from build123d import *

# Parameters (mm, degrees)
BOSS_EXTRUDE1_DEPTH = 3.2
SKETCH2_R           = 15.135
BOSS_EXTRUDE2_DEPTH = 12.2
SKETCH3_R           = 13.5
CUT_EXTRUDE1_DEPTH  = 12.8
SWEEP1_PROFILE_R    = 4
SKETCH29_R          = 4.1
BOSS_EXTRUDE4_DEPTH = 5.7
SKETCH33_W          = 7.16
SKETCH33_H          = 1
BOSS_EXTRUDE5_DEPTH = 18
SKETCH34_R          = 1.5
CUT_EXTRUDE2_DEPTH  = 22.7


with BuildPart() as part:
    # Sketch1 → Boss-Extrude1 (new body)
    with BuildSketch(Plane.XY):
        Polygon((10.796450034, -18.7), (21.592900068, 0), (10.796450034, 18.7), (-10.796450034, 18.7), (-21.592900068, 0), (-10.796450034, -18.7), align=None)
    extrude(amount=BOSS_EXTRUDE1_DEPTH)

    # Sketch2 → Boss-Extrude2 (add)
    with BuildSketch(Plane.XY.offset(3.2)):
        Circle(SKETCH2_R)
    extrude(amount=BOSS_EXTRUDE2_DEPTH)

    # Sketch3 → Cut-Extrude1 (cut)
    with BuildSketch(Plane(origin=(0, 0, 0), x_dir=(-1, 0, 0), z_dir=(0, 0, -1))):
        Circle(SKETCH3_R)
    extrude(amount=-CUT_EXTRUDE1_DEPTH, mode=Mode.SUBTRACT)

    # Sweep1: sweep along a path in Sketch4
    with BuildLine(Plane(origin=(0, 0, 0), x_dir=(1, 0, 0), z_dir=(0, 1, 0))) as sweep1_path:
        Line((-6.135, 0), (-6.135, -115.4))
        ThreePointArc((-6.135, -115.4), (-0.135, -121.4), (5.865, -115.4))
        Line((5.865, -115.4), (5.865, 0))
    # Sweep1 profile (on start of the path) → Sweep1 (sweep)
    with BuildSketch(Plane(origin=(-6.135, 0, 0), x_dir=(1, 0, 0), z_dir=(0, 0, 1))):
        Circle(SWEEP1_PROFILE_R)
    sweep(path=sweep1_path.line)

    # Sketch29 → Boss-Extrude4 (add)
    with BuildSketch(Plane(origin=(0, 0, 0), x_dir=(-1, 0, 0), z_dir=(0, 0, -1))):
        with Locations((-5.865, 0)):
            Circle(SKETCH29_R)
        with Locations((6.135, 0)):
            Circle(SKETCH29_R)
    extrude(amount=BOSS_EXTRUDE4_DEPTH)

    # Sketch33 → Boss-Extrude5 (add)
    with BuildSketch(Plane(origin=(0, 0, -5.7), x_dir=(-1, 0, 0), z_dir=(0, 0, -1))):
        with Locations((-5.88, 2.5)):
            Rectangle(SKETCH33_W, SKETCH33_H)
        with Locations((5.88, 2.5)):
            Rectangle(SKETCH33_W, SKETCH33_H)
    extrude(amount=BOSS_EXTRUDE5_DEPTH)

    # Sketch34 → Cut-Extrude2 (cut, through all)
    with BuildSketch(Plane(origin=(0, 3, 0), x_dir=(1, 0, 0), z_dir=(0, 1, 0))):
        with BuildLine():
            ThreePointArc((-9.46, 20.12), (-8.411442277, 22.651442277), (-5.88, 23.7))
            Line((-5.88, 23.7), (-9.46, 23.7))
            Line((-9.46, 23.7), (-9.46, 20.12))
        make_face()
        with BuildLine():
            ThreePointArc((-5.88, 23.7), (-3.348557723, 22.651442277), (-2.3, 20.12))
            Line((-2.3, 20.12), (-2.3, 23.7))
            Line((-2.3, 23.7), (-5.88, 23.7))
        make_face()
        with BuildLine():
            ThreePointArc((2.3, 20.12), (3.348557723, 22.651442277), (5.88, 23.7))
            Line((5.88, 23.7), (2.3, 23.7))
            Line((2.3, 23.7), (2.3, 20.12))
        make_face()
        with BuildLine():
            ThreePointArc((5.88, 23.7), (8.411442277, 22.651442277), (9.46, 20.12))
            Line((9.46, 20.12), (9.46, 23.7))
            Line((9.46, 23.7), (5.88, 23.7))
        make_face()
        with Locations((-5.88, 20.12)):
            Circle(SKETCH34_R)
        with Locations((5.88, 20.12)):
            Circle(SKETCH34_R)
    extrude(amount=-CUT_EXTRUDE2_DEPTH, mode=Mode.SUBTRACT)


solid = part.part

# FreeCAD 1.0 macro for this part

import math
import FreeCAD as App
import Part
import Sketcher
from FreeCAD import Vector
Q = App.Units.Quantity

doc = App.newDocument("Part")
body = doc.addObject("PartDesign::Body", "Body")

# Sketch on XY plane
sketch1 = doc.addObject("Sketcher::SketchObject", "Sketch")
body.addObject(sketch1)
sketch1.AttachmentSupport = (doc.XY_Plane, [""])
sketch1.MapMode = "FlatFace"
sketch1.addGeometry(Part.LineSegment(Vector(11, -19, 0), Vector(22, 0, 0)), False)
sketch1.addGeometry(Part.LineSegment(Vector(22, 0, 0), Vector(11, 19, 0)), False)
sketch1.addGeometry(Part.LineSegment(Vector(11, 19, 0), Vector(-11, 19, 0)), False)
sketch1.addGeometry(Part.LineSegment(Vector(-11, 19, 0), Vector(-22, 0, 0)), False)
sketch1.addGeometry(Part.LineSegment(Vector(-22, 0, 0), Vector(-11, -19, 0)), False)
sketch1.addGeometry(Part.LineSegment(Vector(-11, -19, 0), Vector(11, -19, 0)), False)
sketch1.addConstraint(Sketcher.Constraint("Coincident", 0, 2, 1, 1))
sketch1.addConstraint(Sketcher.Constraint("Coincident", 1, 2, 2, 1))
sketch1.addConstraint(Sketcher.Constraint("Coincident", 2, 2, 3, 1))
sketch1.addConstraint(Sketcher.Constraint("Coincident", 3, 2, 4, 1))
sketch1.addConstraint(Sketcher.Constraint("Coincident", 4, 2, 5, 1))
sketch1.addConstraint(Sketcher.Constraint("Coincident", 5, 2, 0, 1))
sketch1.addConstraint(Sketcher.Constraint("Horizontal", 2))
sketch1.addConstraint(Sketcher.Constraint("Horizontal", 5))
sketch1.addConstraint(Sketcher.Constraint("Symmetric", 0, 2, 3, 2, -1, 1))
sketch1.addConstraint(Sketcher.Constraint("Symmetric", 1, 2, 4, 2, -1, 1))
sketch1.addConstraint(Sketcher.Constraint("PointOnObject", 0, 2, -1))
sketch1.addConstraint(Sketcher.Constraint("Parallel", 0, 3))
sketch1.addConstraint(Sketcher.Constraint("Vertical", 2, 2, 4, 2))
sketch1.addConstraint(Sketcher.Constraint("Angle", 0, Q("60 deg")))
sketch1.addConstraint(Sketcher.Constraint("DistanceY", -1, 1, 1, 2, Q("18.7 mm")))
sketch1.addConstraint(Sketcher.Constraint("DistanceX", 2, 2, 2, 1, Q("21.5929 mm")))
pad1 = doc.addObject("PartDesign::Pad", "Pad")
body.addObject(pad1)
pad1.Profile = sketch1
pad1.Length = 3.2

# Sketch on XY plane
sketch2 = doc.addObject("Sketcher::SketchObject", "Sketch001")
body.addObject(sketch2)
sketch2.AttachmentSupport = (doc.XY_Plane, [""])
sketch2.MapMode = "FlatFace"
sketch2.AttachmentOffset = App.Placement(Vector(0, 0, 3.2), App.Rotation())
sketch2.addGeometry(Part.Circle(Vector(0, 0, 0), Vector(0, 0, 1), 15), False)
sketch2.addConstraint(Sketcher.Constraint("Coincident", 0, 3, -1, 1))
sketch2.addConstraint(Sketcher.Constraint("Diameter", 0, Q("30.27 mm")))
pad2 = doc.addObject("PartDesign::Pad", "Pad001")
body.addObject(pad2)
pad2.Profile = sketch2
pad2.Length = 12.2

# Sketch on XY plane
sketch3 = doc.addObject("Sketcher::SketchObject", "Sketch002")
body.addObject(sketch3)
sketch3.AttachmentSupport = (doc.XY_Plane, [""])
sketch3.MapMode = "FlatFace"
sketch3.addGeometry(Part.Circle(Vector(0, 0, 0), Vector(0, 0, 1), 14), False)
sketch3.addConstraint(Sketcher.Constraint("Coincident", 0, 3, -1, 1))
sketch3.addConstraint(Sketcher.Constraint("Diameter", 0, Q("27 mm")))
pocket1 = doc.addObject("PartDesign::Pocket", "Pocket")
body.addObject(pocket1)
pocket1.Profile = sketch3
pocket1.Length = 12.8
pocket1.Reversed = True

# Sketch on XY plane
sketch4 = doc.addObject("Sketcher::SketchObject", "Sketch003")
body.addObject(sketch4)
sketch4.AttachmentSupport = (doc.XY_Plane, [""])
sketch4.MapMode = "FlatFace"
sketch4.addGeometry(Part.Circle(Vector(-6.1, 0, 0), Vector(0, 0, 1), 4), False)
sketch4.addConstraint(Sketcher.Constraint("PointOnObject", 0, 3, -1))
sketch4.addConstraint(Sketcher.Constraint("Diameter", 0, Q("8 mm")))
sketch4.addConstraint(Sketcher.Constraint("DistanceX", 0, 3, -1, 1, Q("6.135 mm")))

# Sketch on XZ plane
sketch5 = doc.addObject("Sketcher::SketchObject", "Sketch004")
body.addObject(sketch5)
sketch5.AttachmentSupport = (doc.XZ_Plane, [""])
sketch5.MapMode = "FlatFace"
sketch5.addGeometry(Part.LineSegment(Vector(-6, 0, 0), Vector(-6, 115, 0)), False)
sketch5.addGeometry(Part.ArcOfCircle(Part.Circle(Vector(0, 115, 0), Vector(0, 0, 1), 6), math.radians(0), math.radians(180)), False)
sketch5.addGeometry(Part.LineSegment(Vector(6, 115, 0), Vector(6, 0, 0)), False)
sketch5.addConstraint(Sketcher.Constraint("Tangent", 0, 2, 1, 2))
sketch5.addConstraint(Sketcher.Constraint("Tangent", 1, 1, 2, 1))
sketch5.addConstraint(Sketcher.Constraint("Vertical", 0))
sketch5.addConstraint(Sketcher.Constraint("Vertical", 2))
sketch5.addConstraint(Sketcher.Constraint("PointOnObject", 0, 1, -1))
sketch5.addConstraint(Sketcher.Constraint("PointOnObject", 2, 2, -1))
sketch5.addConstraint(Sketcher.Constraint("Radius", 1, Q("6 mm")))
sketch5.addConstraint(Sketcher.Constraint("DistanceY", 0, 1, 0, 2, Q("115.4 mm")))
sketch5.addConstraint(Sketcher.Constraint("DistanceX", 1, 3, -1, 1, Q("0.135 mm")))
doc.recompute()

additivepipe = doc.addObject("PartDesign::AdditivePipe", "AdditivePipe")
body.addObject(additivepipe)
additivepipe.Profile = sketch4
additivepipe.Spine = (sketch5, ["Edge1", "Edge2", "Edge3"])

# Sketch on XY plane
sketch6 = doc.addObject("Sketcher::SketchObject", "Sketch005")
body.addObject(sketch6)
sketch6.AttachmentSupport = (doc.XY_Plane, [""])
sketch6.MapMode = "FlatFace"
sketch6.addGeometry(Part.Circle(Vector(5.9, 0, 0), Vector(0, 0, 1), 4.1), False)
sketch6.addGeometry(Part.Circle(Vector(-6.1, 0, 0), Vector(0, 0, 1), 4.1), False)
sketch6.addConstraint(Sketcher.Constraint("Equal", 0, 1))
sketch6.addConstraint(Sketcher.Constraint("PointOnObject", 0, 3, -1))
sketch6.addConstraint(Sketcher.Constraint("PointOnObject", 1, 3, -1))
sketch6.addConstraint(Sketcher.Constraint("Diameter", 0, Q("8.2 mm")))
sketch6.addConstraint(Sketcher.Constraint("DistanceX", 1, 3, 0, 3, Q("12 mm")))
sketch6.addConstraint(Sketcher.Constraint("DistanceX", -1, 1, 0, 3, Q("5.865 mm")))
pad3 = doc.addObject("PartDesign::Pad", "Pad002")
body.addObject(pad3)
pad3.Profile = sketch6
pad3.Length = 5.7
pad3.Reversed = True

# Sketch on XY plane
sketch7 = doc.addObject("Sketcher::SketchObject", "Sketch006")
body.addObject(sketch7)
sketch7.AttachmentSupport = (doc.XY_Plane, [""])
sketch7.MapMode = "FlatFace"
sketch7.AttachmentOffset = App.Placement(Vector(0, 0, -5.7), App.Rotation())
sketch7.addGeometry(Part.LineSegment(Vector(9.5, 3, 0), Vector(9.5, 2, 0)), False)
sketch7.addGeometry(Part.LineSegment(Vector(9.5, 2, 0), Vector(2.3, 2, 0)), False)
sketch7.addGeometry(Part.LineSegment(Vector(2.3, 2, 0), Vector(2.3, 3, 0)), False)
sketch7.addGeometry(Part.LineSegment(Vector(2.3, 3, 0), Vector(9.5, 3, 0)), False)
sketch7.addGeometry(Part.LineSegment(Vector(-2.3, 3, 0), Vector(-2.3, 2, 0)), False)
sketch7.addGeometry(Part.LineSegment(Vector(-2.3, 2, 0), Vector(-9.5, 2, 0)), False)
sketch7.addGeometry(Part.LineSegment(Vector(-9.5, 2, 0), Vector(-9.5, 3, 0)), False)
sketch7.addGeometry(Part.LineSegment(Vector(-9.5, 3, 0), Vector(-2.3, 3, 0)), False)
sketch7.addConstraint(Sketcher.Constraint("Coincident", 0, 2, 1, 1))
sketch7.addConstraint(Sketcher.Constraint("Coincident", 1, 2, 2, 1))
sketch7.addConstraint(Sketcher.Constraint("Coincident", 2, 2, 3, 1))
sketch7.addConstraint(Sketcher.Constraint("Coincident", 3, 2, 0, 1))
sketch7.addConstraint(Sketcher.Constraint("Coincident", 4, 2, 5, 1))
sketch7.addConstraint(Sketcher.Constraint("Coincident", 5, 2, 6, 1))
sketch7.addConstraint(Sketcher.Constraint("Coincident", 6, 2, 7, 1))
sketch7.addConstraint(Sketcher.Constraint("Coincident", 7, 2, 4, 1))
sketch7.addConstraint(Sketcher.Constraint("Vertical", 0))
sketch7.addConstraint(Sketcher.Constraint("Horizontal", 1))
sketch7.addConstraint(Sketcher.Constraint("Vertical", 2))
sketch7.addConstraint(Sketcher.Constraint("Horizontal", 3))
sketch7.addConstraint(Sketcher.Constraint("Vertical", 4))
sketch7.addConstraint(Sketcher.Constraint("Horizontal", 5))
sketch7.addConstraint(Sketcher.Constraint("Vertical", 6))
sketch7.addConstraint(Sketcher.Constraint("Horizontal", 7))
sketch7.addConstraint(Sketcher.Constraint("Symmetric", 1, 2, 4, 2, -2))
sketch7.addConstraint(Sketcher.Constraint("Symmetric", 3, 2, 6, 2, -2))
sketch7.addConstraint(Sketcher.Constraint("DistanceY", 0, 2, 0, 1, Q("1 mm")))
sketch7.addConstraint(Sketcher.Constraint("DistanceY", -1, 1, 0, 2, Q("2 mm")))
sketch7.addConstraint(Sketcher.Constraint("DistanceX", 1, 2, 1, 1, Q("7.16 mm")))
sketch7.addConstraint(Sketcher.Constraint("DistanceX", -1, 1, 1, 2, Q("2.3 mm")))
pad4 = doc.addObject("PartDesign::Pad", "Pad003")
body.addObject(pad4)
pad4.Profile = sketch7
pad4.Length = 18
pad4.Reversed = True

# Sketch on XZ plane
sketch8 = doc.addObject("Sketcher::SketchObject", "Sketch007")
body.addObject(sketch8)
sketch8.AttachmentSupport = (doc.XZ_Plane, [""])
sketch8.MapMode = "FlatFace"
sketch8.AttachmentOffset = App.Placement(Vector(0, 0, -3), App.Rotation())
sketch8.addGeometry(Part.ArcOfCircle(Part.Circle(Vector(-5.9, -20.1, 0), Vector(0, 0, 1), 3.6), math.radians(180), math.radians(270)), False)
sketch8.addGeometry(Part.LineSegment(Vector(-5.9, -23.7, 0), Vector(-9.5, -23.7, 0)), False)
sketch8.addGeometry(Part.LineSegment(Vector(-9.5, -23.7, 0), Vector(-9.5, -20.1, 0)), False)
sketch8.addGeometry(Part.ArcOfCircle(Part.Circle(Vector(-5.9, -20.1, 0), Vector(0, 0, 1), 3.6), math.radians(-90), math.radians(0)), False)
sketch8.addGeometry(Part.LineSegment(Vector(-2.3, -20.1, 0), Vector(-2.3, -23.7, 0)), False)
sketch8.addGeometry(Part.LineSegment(Vector(-2.3, -23.7, 0), Vector(-5.9, -23.7, 0)), False)
sketch8.addGeometry(Part.ArcOfCircle(Part.Circle(Vector(5.9, -20.1, 0), Vector(0, 0, 1), 3.6), math.radians(180), math.radians(270)), False)
sketch8.addGeometry(Part.LineSegment(Vector(5.9, -23.7, 0), Vector(2.3, -23.7, 0)), False)
sketch8.addGeometry(Part.LineSegment(Vector(2.3, -23.7, 0), Vector(2.3, -20.1, 0)), False)
sketch8.addGeometry(Part.ArcOfCircle(Part.Circle(Vector(5.9, -20.1, 0), Vector(0, 0, 1), 3.6), math.radians(-90), math.radians(0)), False)
sketch8.addGeometry(Part.LineSegment(Vector(9.5, -20.1, 0), Vector(9.5, -23.7, 0)), False)
sketch8.addGeometry(Part.LineSegment(Vector(9.5, -23.7, 0), Vector(5.9, -23.7, 0)), False)
sketch8.addGeometry(Part.Circle(Vector(-5.9, -20.1, 0), Vector(0, 0, 1), 1.5), False)
sketch8.addGeometry(Part.Circle(Vector(5.9, -20.1, 0), Vector(0, 0, 1), 1.5), False)
sketch8.addConstraint(Sketcher.Constraint("Tangent", 0, 2, 1, 1))
sketch8.addConstraint(Sketcher.Constraint("Coincident", 1, 2, 2, 1))
sketch8.addConstraint(Sketcher.Constraint("Tangent", 2, 2, 0, 1))
sketch8.addConstraint(Sketcher.Constraint("Tangent", 3, 2, 4, 1))
sketch8.addConstraint(Sketcher.Constraint("Coincident", 4, 2, 5, 1))
sketch8.addConstraint(Sketcher.Constraint("Tangent", 5, 2, 3, 1))
sketch8.addConstraint(Sketcher.Constraint("Tangent", 6, 2, 7, 1))
sketch8.addConstraint(Sketcher.Constraint("Coincident", 7, 2, 8, 1))
sketch8.addConstraint(Sketcher.Constraint("Tangent", 8, 2, 6, 1))
sketch8.addConstraint(Sketcher.Constraint("Tangent", 9, 2, 10, 1))
sketch8.addConstraint(Sketcher.Constraint("Coincident", 10, 2, 11, 1))
sketch8.addConstraint(Sketcher.Constraint("Tangent", 11, 2, 9, 1))
sketch8.addConstraint(Sketcher.Constraint("Horizontal", 1))
sketch8.addConstraint(Sketcher.Constraint("Vertical", 2))
sketch8.addConstraint(Sketcher.Constraint("Vertical", 4))
sketch8.addConstraint(Sketcher.Constraint("Horizontal", 5))
sketch8.addConstraint(Sketcher.Constraint("Horizontal", 7))
sketch8.addConstraint(Sketcher.Constraint("Vertical", 8))
sketch8.addConstraint(Sketcher.Constraint("Vertical", 10))
sketch8.addConstraint(Sketcher.Constraint("Horizontal", 11))
sketch8.addConstraint(Sketcher.Constraint("Coincident", 3, 3, 0, 3))
sketch8.addConstraint(Sketcher.Constraint("Coincident", 9, 3, 6, 3))
sketch8.addConstraint(Sketcher.Constraint("Coincident", 12, 3, 0, 3))
sketch8.addConstraint(Sketcher.Constraint("Coincident", 13, 3, 6, 3))
sketch8.addConstraint(Sketcher.Constraint("Equal", 0, 3))
sketch8.addConstraint(Sketcher.Constraint("Equal", 3, 6))
sketch8.addConstraint(Sketcher.Constraint("Equal", 6, 9))
sketch8.addConstraint(Sketcher.Constraint("Equal", 12, 13))
sketch8.addConstraint(Sketcher.Constraint("Symmetric", 0, 3, 6, 3, -2))
sketch8.addConstraint(Sketcher.Constraint("Diameter", 12, Q("3 mm")))
sketch8.addConstraint(Sketcher.Constraint("Radius", 0, Q("3.58 mm")))
sketch8.addConstraint(Sketcher.Constraint("DistanceY", 0, 2, -1, 1, Q("23.7 mm")))
sketch8.addConstraint(Sketcher.Constraint("DistanceX", 3, 2, -1, 1, Q("2.3 mm")))
pocket2 = doc.addObject("PartDesign::Pocket", "Pocket001")
body.addObject(pocket2)
pocket2.Profile = sketch8
pocket2.Type = "ThroughAll"
pocket2.Reversed = True

doc.recompute()
